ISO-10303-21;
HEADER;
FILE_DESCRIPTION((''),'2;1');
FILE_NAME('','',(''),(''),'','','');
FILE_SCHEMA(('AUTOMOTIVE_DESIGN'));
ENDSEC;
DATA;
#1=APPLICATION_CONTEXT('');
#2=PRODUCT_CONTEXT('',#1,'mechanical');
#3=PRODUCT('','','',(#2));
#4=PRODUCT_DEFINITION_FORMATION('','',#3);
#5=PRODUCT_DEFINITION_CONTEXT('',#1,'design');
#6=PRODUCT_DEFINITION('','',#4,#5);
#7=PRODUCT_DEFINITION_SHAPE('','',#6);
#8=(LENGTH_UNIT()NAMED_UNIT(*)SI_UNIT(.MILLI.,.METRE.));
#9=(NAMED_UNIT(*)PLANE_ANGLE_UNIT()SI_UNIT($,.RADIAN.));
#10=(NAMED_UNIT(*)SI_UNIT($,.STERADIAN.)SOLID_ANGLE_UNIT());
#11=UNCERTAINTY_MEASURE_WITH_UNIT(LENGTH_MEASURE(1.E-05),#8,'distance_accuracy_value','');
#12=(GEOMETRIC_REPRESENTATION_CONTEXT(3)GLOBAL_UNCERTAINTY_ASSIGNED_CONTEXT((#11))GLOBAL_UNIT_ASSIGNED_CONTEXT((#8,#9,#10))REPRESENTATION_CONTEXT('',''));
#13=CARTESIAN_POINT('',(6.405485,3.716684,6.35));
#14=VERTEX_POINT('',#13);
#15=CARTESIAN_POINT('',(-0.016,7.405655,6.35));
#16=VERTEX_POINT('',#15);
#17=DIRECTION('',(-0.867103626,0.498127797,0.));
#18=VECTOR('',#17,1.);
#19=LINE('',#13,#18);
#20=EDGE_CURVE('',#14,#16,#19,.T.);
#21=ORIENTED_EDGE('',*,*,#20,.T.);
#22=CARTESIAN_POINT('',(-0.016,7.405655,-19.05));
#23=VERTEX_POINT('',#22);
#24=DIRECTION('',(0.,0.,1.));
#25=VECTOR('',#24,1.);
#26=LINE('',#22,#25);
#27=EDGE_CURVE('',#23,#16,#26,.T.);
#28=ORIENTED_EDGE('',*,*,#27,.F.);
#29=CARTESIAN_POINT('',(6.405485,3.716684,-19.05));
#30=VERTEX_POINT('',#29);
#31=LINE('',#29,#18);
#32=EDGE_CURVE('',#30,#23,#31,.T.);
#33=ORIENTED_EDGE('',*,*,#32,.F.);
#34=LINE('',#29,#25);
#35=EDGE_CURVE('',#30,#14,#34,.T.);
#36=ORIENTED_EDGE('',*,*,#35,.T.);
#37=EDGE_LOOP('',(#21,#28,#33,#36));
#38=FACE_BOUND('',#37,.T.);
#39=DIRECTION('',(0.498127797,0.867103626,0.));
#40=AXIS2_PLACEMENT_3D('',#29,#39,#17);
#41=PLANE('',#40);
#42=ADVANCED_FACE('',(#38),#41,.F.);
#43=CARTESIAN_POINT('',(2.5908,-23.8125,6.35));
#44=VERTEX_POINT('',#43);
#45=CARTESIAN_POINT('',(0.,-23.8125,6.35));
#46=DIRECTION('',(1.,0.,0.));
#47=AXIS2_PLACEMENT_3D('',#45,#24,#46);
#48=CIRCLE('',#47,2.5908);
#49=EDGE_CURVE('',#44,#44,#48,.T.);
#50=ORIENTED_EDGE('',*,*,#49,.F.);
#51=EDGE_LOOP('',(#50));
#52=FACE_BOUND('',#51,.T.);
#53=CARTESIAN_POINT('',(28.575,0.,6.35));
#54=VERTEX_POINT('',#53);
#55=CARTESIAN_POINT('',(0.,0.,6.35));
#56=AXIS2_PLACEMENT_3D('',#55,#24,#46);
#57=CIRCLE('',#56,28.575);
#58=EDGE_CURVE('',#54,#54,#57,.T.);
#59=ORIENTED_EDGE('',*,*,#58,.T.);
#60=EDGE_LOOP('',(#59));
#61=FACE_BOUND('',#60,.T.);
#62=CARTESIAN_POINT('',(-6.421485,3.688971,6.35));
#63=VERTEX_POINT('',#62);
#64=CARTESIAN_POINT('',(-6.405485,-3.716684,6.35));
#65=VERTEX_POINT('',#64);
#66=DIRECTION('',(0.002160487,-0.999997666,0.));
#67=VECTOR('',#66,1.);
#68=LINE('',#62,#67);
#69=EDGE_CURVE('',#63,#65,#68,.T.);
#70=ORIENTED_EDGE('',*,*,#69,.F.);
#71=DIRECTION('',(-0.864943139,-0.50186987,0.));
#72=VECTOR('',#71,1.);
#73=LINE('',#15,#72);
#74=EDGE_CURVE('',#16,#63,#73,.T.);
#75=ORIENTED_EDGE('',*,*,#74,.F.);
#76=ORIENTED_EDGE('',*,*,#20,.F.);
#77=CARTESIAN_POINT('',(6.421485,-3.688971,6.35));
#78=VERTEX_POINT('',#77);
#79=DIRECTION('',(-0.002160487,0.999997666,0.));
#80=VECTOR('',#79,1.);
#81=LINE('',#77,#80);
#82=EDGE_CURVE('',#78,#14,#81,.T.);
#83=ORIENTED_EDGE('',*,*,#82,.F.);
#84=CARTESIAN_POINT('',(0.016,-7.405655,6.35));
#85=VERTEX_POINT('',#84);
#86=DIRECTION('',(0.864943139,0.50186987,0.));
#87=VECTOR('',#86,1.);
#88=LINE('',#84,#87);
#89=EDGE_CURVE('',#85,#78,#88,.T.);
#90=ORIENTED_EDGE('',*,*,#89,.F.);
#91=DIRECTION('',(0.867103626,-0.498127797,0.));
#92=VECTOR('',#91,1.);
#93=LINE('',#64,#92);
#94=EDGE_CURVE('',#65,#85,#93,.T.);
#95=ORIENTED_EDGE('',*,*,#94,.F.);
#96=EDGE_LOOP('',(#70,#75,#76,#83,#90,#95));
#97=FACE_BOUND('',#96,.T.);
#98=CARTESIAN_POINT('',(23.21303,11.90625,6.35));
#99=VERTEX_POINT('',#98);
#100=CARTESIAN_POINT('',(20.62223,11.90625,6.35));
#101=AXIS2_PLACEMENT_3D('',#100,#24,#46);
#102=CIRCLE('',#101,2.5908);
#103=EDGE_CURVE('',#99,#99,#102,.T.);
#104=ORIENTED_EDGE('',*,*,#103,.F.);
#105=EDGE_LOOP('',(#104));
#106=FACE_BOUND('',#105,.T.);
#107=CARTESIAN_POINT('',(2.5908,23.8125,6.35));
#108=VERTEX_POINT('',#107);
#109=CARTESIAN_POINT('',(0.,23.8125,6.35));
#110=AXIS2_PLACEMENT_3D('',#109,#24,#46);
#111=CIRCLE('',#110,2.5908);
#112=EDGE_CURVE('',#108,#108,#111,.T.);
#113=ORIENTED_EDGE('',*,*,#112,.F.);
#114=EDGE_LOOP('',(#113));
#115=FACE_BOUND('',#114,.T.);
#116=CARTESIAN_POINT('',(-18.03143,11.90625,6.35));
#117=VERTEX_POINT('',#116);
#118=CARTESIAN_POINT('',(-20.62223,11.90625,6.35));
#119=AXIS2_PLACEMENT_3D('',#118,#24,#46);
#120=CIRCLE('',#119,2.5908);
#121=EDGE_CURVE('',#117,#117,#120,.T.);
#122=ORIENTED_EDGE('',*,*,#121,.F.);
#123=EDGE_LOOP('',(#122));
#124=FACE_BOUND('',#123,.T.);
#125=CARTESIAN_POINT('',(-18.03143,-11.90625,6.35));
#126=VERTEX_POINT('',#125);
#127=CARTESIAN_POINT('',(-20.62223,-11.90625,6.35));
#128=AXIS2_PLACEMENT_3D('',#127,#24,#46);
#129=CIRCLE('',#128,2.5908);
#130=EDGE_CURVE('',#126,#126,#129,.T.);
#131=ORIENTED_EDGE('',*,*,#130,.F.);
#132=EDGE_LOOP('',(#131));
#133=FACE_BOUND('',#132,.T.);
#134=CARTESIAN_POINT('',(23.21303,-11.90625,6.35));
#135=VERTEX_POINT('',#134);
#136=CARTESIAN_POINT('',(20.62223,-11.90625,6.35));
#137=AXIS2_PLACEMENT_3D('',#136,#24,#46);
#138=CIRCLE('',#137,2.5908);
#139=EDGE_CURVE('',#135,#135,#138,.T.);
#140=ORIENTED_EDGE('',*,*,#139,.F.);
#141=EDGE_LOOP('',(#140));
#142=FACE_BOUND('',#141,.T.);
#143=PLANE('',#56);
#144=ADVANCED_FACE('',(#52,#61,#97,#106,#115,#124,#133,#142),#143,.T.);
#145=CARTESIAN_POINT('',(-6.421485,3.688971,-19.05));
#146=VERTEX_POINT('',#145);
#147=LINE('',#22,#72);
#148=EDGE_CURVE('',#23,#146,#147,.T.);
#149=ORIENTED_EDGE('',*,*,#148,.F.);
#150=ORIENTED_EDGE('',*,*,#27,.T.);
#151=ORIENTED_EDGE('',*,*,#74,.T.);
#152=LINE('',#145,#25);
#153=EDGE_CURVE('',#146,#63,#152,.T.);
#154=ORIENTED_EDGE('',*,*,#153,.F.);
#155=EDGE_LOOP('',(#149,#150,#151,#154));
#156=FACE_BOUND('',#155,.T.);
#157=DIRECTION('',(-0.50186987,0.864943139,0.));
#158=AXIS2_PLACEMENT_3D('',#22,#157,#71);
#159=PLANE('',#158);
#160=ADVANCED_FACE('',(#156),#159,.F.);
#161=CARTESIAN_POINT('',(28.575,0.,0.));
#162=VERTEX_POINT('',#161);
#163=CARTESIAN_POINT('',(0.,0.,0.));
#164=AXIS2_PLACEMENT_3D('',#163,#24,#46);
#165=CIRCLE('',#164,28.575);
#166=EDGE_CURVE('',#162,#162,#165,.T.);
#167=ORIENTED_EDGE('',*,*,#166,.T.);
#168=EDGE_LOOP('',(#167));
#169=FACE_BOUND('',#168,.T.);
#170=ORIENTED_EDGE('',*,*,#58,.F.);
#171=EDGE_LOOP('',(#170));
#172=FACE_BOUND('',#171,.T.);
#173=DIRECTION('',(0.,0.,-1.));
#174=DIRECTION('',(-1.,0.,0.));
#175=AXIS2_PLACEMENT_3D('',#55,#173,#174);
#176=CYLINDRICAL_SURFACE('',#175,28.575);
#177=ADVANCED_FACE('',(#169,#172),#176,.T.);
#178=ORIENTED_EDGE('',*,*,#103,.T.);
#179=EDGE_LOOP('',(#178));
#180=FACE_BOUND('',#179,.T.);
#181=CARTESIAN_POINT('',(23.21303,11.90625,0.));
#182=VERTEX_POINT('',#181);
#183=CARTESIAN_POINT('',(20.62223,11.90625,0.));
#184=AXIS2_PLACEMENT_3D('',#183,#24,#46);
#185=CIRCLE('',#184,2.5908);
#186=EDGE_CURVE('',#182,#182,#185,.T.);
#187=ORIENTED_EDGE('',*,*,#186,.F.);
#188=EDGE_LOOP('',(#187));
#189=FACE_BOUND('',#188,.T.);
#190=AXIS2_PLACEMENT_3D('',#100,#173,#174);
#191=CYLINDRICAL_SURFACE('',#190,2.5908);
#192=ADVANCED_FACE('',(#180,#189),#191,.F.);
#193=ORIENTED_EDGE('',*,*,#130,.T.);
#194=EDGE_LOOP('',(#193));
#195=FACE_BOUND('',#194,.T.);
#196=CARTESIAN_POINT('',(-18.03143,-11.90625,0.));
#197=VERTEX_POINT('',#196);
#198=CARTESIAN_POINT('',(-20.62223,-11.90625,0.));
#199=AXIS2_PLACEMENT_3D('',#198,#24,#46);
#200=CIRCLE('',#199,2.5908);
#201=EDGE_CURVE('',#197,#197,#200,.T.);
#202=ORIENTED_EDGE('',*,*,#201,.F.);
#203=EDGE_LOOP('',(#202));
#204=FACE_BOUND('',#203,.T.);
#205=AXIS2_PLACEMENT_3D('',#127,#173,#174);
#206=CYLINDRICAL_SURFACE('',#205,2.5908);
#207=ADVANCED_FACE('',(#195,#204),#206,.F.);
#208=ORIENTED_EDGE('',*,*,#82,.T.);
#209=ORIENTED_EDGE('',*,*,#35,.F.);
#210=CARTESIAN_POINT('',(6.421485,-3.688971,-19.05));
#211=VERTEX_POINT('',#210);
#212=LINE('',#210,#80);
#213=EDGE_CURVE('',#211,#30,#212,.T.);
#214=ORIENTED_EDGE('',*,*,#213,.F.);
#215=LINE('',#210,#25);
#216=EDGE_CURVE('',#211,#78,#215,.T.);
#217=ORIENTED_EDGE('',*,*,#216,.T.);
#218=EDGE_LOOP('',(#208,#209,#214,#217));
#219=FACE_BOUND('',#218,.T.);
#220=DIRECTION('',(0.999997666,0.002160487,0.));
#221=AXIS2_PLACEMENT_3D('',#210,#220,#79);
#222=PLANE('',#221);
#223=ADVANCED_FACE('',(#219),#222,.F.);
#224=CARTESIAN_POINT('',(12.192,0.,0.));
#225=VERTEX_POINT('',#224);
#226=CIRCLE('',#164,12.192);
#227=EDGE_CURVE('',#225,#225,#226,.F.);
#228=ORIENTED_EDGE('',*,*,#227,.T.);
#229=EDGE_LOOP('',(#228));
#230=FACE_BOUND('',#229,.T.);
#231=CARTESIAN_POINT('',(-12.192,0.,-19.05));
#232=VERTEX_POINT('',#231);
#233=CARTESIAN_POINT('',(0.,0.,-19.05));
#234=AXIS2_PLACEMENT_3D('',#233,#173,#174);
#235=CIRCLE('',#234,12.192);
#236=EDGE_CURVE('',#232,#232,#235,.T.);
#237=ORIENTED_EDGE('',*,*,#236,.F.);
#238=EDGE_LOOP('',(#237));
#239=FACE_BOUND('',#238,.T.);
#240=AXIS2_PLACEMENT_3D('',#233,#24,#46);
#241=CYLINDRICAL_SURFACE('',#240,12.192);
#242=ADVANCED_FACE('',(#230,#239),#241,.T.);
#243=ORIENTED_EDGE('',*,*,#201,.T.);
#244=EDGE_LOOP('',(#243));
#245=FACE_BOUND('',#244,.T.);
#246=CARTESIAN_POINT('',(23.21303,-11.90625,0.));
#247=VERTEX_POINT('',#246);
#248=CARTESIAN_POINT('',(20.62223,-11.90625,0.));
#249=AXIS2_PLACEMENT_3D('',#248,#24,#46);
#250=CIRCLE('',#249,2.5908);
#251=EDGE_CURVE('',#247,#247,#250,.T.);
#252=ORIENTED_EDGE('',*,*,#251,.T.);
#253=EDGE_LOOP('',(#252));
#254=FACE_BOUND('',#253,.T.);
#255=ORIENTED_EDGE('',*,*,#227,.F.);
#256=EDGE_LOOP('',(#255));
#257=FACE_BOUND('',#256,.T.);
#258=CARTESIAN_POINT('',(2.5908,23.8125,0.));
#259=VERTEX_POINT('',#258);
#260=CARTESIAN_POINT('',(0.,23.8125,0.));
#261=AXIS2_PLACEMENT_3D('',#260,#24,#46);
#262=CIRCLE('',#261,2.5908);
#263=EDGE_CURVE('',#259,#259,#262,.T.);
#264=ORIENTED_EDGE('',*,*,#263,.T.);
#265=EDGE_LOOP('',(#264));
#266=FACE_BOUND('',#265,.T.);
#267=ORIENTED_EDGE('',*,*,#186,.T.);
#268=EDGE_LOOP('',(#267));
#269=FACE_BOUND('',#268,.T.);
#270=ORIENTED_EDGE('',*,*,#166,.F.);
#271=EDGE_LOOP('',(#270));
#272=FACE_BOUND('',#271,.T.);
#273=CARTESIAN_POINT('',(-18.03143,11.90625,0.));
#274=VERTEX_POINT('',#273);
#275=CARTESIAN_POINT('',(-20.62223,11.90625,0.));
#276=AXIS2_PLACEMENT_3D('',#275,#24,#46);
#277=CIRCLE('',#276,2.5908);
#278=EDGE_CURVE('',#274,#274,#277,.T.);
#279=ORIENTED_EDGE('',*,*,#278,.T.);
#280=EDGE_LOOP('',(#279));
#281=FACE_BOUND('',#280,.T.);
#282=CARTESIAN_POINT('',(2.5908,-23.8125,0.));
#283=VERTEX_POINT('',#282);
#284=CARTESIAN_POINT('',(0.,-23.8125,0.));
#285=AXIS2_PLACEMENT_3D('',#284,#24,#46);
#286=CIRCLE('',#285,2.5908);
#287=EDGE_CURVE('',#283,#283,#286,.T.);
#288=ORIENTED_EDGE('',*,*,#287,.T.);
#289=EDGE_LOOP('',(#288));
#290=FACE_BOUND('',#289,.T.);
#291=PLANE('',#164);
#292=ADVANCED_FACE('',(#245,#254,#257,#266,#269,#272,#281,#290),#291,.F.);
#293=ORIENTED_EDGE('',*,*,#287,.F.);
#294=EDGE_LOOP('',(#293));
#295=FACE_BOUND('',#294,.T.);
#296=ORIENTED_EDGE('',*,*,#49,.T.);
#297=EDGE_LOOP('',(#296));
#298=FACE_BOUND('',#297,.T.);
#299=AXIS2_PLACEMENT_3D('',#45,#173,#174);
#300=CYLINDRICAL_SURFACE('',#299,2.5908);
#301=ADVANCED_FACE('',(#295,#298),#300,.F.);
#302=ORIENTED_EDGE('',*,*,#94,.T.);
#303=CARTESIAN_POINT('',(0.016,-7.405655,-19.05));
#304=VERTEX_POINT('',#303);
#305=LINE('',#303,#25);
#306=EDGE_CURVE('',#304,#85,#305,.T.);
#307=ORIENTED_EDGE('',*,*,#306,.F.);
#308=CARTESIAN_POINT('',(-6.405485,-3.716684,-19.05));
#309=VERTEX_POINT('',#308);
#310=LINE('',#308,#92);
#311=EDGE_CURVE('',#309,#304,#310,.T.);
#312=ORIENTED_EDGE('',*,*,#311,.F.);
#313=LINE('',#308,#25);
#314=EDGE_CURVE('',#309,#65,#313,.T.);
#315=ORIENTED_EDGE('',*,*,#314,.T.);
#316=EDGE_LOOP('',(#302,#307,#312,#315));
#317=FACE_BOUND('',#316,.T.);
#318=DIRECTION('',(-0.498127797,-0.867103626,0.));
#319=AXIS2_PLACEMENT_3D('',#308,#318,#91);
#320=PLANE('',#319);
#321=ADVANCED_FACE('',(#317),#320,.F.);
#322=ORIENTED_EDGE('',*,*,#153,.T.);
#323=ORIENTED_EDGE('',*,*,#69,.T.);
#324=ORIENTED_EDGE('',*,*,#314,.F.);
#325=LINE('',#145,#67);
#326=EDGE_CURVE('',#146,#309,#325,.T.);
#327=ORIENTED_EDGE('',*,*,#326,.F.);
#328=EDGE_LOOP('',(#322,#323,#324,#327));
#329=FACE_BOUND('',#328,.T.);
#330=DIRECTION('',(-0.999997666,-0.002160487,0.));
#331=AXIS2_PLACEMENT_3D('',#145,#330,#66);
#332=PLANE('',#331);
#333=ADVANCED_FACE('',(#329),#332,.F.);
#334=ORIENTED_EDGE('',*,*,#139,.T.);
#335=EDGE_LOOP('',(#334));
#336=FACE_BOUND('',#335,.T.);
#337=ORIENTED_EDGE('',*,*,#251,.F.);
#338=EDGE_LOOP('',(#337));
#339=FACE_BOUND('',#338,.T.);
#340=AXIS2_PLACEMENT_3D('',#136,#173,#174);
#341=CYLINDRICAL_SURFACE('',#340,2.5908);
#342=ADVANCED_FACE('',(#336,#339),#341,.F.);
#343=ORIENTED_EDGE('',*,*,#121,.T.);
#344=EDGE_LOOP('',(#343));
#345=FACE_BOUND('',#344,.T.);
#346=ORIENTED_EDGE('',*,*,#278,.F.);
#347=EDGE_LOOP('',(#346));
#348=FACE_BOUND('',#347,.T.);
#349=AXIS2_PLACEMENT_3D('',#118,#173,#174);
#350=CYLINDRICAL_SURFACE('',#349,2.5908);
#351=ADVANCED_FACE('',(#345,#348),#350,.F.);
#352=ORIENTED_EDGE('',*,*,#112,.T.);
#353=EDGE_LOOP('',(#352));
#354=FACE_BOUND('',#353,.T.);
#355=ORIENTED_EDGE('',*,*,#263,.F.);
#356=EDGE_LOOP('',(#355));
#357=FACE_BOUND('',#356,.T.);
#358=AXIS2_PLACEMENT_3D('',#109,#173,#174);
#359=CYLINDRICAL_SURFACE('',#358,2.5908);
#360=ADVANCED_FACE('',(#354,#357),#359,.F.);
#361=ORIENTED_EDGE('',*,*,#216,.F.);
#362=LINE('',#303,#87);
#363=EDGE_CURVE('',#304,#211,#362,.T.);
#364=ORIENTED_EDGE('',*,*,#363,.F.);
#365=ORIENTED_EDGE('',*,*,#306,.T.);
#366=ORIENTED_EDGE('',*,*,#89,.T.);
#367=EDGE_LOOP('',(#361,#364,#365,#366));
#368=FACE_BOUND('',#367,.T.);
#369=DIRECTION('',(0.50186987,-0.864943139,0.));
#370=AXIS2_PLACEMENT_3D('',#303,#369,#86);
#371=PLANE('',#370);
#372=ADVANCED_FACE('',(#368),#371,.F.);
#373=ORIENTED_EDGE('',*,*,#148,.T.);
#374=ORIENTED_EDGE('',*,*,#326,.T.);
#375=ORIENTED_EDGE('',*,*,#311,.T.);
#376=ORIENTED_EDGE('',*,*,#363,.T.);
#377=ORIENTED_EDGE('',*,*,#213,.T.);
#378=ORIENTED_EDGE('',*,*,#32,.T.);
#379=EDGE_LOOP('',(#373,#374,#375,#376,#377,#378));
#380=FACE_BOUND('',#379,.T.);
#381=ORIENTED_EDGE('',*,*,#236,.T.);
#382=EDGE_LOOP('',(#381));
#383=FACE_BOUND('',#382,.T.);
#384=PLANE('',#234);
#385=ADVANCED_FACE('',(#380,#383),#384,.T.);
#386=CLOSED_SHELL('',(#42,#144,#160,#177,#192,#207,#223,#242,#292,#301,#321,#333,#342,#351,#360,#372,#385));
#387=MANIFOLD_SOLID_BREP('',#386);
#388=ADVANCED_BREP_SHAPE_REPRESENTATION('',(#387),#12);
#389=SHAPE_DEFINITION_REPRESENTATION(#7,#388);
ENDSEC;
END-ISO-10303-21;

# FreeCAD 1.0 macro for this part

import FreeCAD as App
import Part
import Sketcher
Q = App.Units.Quantity


def add_polygon(sketch, points):
    """Adds a closed chain of lines whose ends are joined by coincident constraints."""
    first, n = sketch.GeometryCount, len(points)
    for a, b in zip(points, points[1:] + points[:1]):
        sketch.addGeometry(Part.LineSegment(App.Vector(*a, 0), App.Vector(*b, 0)), False)
    for i in range(n):
        sketch.addConstraint(Sketcher.Constraint("Coincident", first + i, 2, first + (i + 1) % n, 1))

doc = App.newDocument("Part")
params = doc.addObject("Spreadsheet::Sheet", "Params")
for row, (alias, value) in enumerate([
    ("sketch1_diameter", "2.25 in"),
    ("sketch1_diameter2", "0.204 in"),
    ("pad1_length", "0.25 in"),
    ("sketch2_diameter", "0.96 in"),
    ("pad2_length", "0.75 in"),
], start=1):
    params.set(f"A{row}", alias)
    params.set(f"B{row}", "=" + value)
    params.setAlias(f"B{row}", alias)

body = doc.addObject("PartDesign::Body", "Body")

# Sketch on XY plane
sketch1 = doc.addObject("Sketcher::SketchObject", "Sketch")
body.addObject(sketch1)
sketch1.AttachmentSupport = (doc.XY_Plane, [""])
sketch1.MapMode = "FlatFace"
sketch1.addGeometry(Part.Circle(App.Vector(0, 0, 0), App.Vector(0, 0, 1), 28.575), False)
sketch1.addGeometry(Part.Circle(App.Vector(-20.62223, -11.90625, 0), App.Vector(0, 0, 1), 2.5908), False)
sketch1.addGeometry(Part.Circle(App.Vector(0, -23.8125, 0), App.Vector(0, 0, 1), 2.5908), False)
sketch1.addGeometry(Part.Circle(App.Vector(20.62223, -11.90625, 0), App.Vector(0, 0, 1), 2.5908), False)
sketch1.addGeometry(Part.Circle(App.Vector(-20.62223, 11.90625, 0), App.Vector(0, 0, 1), 2.5908), False)
sketch1.addGeometry(Part.Circle(App.Vector(20.62223, 11.90625, 0), App.Vector(0, 0, 1), 2.5908), False)
sketch1.addGeometry(Part.Circle(App.Vector(0, 23.8125, 0), App.Vector(0, 0, 1), 2.5908), False)
sketch1.addConstraint(Sketcher.Constraint("Coincident", 0, 3, -1, 1))
sketch1.addConstraint(Sketcher.Constraint("Equal", 1, 2))
sketch1.addConstraint(Sketcher.Constraint("Equal", 2, 3))
sketch1.addConstraint(Sketcher.Constraint("Equal", 3, 4))
sketch1.addConstraint(Sketcher.Constraint("Equal", 4, 5))
sketch1.addConstraint(Sketcher.Constraint("Equal", 5, 6))
sketch1.addConstraint(Sketcher.Constraint("Symmetric", 3, 3, 4, 3, -1, 1))
sketch1.addConstraint(Sketcher.Constraint("Symmetric", 1, 3, 5, 3, -1, 1))
sketch1.addConstraint(Sketcher.Constraint("Symmetric", 2, 3, 6, 3, -1, 1))
sketch1.addConstraint(Sketcher.Constraint("Symmetric", 1, 3, 3, 3, -2))
sketch1.addConstraint(Sketcher.Constraint("PointOnObject", 2, 3, -2))
sketch1.addConstraint(Sketcher.Constraint("Diameter", 0, Q("2.25 in")))
sketch1.addConstraint(Sketcher.Constraint("Diameter", 1, Q("0.204 in")))
sketch1.addConstraint(Sketcher.Constraint("DistanceY", 1, 3, -1, 1, Q("0.46875 in")))
sketch1.addConstraint(Sketcher.Constraint("DistanceY", 2, 3, -1, 1, Q("0.9375 in")))
sketch1.addConstraint(Sketcher.Constraint("DistanceX", 1, 3, -1, 1, 20.62223))
sketch1.setExpression("Constraints[11]", "Params.sketch1_diameter")
sketch1.setExpression("Constraints[12]", "Params.sketch1_diameter2")
pad1 = doc.addObject("PartDesign::Pad", "Pad")
body.addObject(pad1)
pad1.Profile = sketch1
pad1.setExpression("Length", "Params.pad1_length")

# Sketch on XY plane
sketch2 = doc.addObject("Sketcher::SketchObject", "Sketch001")
body.addObject(sketch2)
sketch2.AttachmentSupport = (doc.XY_Plane, [""])
sketch2.MapMode = "FlatFace"
sketch2.addGeometry(Part.Circle(App.Vector(0, 0, 0), App.Vector(0, 0, 1), 12.192), False)
sketch2.addConstraint(Sketcher.Constraint("Coincident", 0, 3, -1, 1))
sketch2.addConstraint(Sketcher.Constraint("Diameter", 0, Q("0.96 in")))
sketch2.setExpression("Constraints[1]", "Params.sketch2_diameter")
pad2 = doc.addObject("PartDesign::Pad", "Pad001")
body.addObject(pad2)
pad2.Profile = sketch2
pad2.setExpression("Length", "Params.pad2_length")
pad2.Reversed = True

# Sketch on XY plane
sketch3 = doc.addObject("Sketcher::SketchObject", "Sketch002")
body.addObject(sketch3)
sketch3.AttachmentSupport = (doc.XY_Plane, [""])
sketch3.MapMode = "FlatFace"
sketch3.AttachmentOffset = App.Placement(App.Vector(0, 0, 0.25 * 25.4), App.Rotation())
add_polygon(sketch3, [(6.421485, -3.688971), (6.405485, 3.716684), (-0.016, 7.405655), (-6.421485, 3.688971), (-6.405485, -3.716684), (0.016, -7.405655)])  # lines 0-5
sketch3.addConstraint(Sketcher.Constraint("Symmetric", 0, 2, 3, 2, -1, 1))
sketch3.addConstraint(Sketcher.Constraint("Symmetric", 1, 2, 4, 2, -1, 1))
sketch3.addConstraint(Sketcher.Constraint("Symmetric", 2, 2, 5, 2, -1, 1))
sketch3.addConstraint(Sketcher.Constraint("Equal", 0, 1))
sketch3.addConstraint(Sketcher.Constraint("Equal", 1, 2))
sketch3.addConstraint(Sketcher.Constraint("DistanceX", 1, 2, -1, 1, 0.016))
sketch3.addConstraint(Sketcher.Constraint("DistanceX", 2, 2, 3, 2, 0.016))
sketch3.addConstraint(Sketcher.Constraint("Distance", 0, 7.405672))
sketch3.addConstraint(Sketcher.Constraint("DistanceY", 0, 2, 1, 2, 3.688971))
pocket1 = doc.addObject("PartDesign::Pocket", "Pocket")
body.addObject(pocket1)
pocket1.Profile = sketch3
pocket1.Type = "ThroughAll"

doc.recompute()
